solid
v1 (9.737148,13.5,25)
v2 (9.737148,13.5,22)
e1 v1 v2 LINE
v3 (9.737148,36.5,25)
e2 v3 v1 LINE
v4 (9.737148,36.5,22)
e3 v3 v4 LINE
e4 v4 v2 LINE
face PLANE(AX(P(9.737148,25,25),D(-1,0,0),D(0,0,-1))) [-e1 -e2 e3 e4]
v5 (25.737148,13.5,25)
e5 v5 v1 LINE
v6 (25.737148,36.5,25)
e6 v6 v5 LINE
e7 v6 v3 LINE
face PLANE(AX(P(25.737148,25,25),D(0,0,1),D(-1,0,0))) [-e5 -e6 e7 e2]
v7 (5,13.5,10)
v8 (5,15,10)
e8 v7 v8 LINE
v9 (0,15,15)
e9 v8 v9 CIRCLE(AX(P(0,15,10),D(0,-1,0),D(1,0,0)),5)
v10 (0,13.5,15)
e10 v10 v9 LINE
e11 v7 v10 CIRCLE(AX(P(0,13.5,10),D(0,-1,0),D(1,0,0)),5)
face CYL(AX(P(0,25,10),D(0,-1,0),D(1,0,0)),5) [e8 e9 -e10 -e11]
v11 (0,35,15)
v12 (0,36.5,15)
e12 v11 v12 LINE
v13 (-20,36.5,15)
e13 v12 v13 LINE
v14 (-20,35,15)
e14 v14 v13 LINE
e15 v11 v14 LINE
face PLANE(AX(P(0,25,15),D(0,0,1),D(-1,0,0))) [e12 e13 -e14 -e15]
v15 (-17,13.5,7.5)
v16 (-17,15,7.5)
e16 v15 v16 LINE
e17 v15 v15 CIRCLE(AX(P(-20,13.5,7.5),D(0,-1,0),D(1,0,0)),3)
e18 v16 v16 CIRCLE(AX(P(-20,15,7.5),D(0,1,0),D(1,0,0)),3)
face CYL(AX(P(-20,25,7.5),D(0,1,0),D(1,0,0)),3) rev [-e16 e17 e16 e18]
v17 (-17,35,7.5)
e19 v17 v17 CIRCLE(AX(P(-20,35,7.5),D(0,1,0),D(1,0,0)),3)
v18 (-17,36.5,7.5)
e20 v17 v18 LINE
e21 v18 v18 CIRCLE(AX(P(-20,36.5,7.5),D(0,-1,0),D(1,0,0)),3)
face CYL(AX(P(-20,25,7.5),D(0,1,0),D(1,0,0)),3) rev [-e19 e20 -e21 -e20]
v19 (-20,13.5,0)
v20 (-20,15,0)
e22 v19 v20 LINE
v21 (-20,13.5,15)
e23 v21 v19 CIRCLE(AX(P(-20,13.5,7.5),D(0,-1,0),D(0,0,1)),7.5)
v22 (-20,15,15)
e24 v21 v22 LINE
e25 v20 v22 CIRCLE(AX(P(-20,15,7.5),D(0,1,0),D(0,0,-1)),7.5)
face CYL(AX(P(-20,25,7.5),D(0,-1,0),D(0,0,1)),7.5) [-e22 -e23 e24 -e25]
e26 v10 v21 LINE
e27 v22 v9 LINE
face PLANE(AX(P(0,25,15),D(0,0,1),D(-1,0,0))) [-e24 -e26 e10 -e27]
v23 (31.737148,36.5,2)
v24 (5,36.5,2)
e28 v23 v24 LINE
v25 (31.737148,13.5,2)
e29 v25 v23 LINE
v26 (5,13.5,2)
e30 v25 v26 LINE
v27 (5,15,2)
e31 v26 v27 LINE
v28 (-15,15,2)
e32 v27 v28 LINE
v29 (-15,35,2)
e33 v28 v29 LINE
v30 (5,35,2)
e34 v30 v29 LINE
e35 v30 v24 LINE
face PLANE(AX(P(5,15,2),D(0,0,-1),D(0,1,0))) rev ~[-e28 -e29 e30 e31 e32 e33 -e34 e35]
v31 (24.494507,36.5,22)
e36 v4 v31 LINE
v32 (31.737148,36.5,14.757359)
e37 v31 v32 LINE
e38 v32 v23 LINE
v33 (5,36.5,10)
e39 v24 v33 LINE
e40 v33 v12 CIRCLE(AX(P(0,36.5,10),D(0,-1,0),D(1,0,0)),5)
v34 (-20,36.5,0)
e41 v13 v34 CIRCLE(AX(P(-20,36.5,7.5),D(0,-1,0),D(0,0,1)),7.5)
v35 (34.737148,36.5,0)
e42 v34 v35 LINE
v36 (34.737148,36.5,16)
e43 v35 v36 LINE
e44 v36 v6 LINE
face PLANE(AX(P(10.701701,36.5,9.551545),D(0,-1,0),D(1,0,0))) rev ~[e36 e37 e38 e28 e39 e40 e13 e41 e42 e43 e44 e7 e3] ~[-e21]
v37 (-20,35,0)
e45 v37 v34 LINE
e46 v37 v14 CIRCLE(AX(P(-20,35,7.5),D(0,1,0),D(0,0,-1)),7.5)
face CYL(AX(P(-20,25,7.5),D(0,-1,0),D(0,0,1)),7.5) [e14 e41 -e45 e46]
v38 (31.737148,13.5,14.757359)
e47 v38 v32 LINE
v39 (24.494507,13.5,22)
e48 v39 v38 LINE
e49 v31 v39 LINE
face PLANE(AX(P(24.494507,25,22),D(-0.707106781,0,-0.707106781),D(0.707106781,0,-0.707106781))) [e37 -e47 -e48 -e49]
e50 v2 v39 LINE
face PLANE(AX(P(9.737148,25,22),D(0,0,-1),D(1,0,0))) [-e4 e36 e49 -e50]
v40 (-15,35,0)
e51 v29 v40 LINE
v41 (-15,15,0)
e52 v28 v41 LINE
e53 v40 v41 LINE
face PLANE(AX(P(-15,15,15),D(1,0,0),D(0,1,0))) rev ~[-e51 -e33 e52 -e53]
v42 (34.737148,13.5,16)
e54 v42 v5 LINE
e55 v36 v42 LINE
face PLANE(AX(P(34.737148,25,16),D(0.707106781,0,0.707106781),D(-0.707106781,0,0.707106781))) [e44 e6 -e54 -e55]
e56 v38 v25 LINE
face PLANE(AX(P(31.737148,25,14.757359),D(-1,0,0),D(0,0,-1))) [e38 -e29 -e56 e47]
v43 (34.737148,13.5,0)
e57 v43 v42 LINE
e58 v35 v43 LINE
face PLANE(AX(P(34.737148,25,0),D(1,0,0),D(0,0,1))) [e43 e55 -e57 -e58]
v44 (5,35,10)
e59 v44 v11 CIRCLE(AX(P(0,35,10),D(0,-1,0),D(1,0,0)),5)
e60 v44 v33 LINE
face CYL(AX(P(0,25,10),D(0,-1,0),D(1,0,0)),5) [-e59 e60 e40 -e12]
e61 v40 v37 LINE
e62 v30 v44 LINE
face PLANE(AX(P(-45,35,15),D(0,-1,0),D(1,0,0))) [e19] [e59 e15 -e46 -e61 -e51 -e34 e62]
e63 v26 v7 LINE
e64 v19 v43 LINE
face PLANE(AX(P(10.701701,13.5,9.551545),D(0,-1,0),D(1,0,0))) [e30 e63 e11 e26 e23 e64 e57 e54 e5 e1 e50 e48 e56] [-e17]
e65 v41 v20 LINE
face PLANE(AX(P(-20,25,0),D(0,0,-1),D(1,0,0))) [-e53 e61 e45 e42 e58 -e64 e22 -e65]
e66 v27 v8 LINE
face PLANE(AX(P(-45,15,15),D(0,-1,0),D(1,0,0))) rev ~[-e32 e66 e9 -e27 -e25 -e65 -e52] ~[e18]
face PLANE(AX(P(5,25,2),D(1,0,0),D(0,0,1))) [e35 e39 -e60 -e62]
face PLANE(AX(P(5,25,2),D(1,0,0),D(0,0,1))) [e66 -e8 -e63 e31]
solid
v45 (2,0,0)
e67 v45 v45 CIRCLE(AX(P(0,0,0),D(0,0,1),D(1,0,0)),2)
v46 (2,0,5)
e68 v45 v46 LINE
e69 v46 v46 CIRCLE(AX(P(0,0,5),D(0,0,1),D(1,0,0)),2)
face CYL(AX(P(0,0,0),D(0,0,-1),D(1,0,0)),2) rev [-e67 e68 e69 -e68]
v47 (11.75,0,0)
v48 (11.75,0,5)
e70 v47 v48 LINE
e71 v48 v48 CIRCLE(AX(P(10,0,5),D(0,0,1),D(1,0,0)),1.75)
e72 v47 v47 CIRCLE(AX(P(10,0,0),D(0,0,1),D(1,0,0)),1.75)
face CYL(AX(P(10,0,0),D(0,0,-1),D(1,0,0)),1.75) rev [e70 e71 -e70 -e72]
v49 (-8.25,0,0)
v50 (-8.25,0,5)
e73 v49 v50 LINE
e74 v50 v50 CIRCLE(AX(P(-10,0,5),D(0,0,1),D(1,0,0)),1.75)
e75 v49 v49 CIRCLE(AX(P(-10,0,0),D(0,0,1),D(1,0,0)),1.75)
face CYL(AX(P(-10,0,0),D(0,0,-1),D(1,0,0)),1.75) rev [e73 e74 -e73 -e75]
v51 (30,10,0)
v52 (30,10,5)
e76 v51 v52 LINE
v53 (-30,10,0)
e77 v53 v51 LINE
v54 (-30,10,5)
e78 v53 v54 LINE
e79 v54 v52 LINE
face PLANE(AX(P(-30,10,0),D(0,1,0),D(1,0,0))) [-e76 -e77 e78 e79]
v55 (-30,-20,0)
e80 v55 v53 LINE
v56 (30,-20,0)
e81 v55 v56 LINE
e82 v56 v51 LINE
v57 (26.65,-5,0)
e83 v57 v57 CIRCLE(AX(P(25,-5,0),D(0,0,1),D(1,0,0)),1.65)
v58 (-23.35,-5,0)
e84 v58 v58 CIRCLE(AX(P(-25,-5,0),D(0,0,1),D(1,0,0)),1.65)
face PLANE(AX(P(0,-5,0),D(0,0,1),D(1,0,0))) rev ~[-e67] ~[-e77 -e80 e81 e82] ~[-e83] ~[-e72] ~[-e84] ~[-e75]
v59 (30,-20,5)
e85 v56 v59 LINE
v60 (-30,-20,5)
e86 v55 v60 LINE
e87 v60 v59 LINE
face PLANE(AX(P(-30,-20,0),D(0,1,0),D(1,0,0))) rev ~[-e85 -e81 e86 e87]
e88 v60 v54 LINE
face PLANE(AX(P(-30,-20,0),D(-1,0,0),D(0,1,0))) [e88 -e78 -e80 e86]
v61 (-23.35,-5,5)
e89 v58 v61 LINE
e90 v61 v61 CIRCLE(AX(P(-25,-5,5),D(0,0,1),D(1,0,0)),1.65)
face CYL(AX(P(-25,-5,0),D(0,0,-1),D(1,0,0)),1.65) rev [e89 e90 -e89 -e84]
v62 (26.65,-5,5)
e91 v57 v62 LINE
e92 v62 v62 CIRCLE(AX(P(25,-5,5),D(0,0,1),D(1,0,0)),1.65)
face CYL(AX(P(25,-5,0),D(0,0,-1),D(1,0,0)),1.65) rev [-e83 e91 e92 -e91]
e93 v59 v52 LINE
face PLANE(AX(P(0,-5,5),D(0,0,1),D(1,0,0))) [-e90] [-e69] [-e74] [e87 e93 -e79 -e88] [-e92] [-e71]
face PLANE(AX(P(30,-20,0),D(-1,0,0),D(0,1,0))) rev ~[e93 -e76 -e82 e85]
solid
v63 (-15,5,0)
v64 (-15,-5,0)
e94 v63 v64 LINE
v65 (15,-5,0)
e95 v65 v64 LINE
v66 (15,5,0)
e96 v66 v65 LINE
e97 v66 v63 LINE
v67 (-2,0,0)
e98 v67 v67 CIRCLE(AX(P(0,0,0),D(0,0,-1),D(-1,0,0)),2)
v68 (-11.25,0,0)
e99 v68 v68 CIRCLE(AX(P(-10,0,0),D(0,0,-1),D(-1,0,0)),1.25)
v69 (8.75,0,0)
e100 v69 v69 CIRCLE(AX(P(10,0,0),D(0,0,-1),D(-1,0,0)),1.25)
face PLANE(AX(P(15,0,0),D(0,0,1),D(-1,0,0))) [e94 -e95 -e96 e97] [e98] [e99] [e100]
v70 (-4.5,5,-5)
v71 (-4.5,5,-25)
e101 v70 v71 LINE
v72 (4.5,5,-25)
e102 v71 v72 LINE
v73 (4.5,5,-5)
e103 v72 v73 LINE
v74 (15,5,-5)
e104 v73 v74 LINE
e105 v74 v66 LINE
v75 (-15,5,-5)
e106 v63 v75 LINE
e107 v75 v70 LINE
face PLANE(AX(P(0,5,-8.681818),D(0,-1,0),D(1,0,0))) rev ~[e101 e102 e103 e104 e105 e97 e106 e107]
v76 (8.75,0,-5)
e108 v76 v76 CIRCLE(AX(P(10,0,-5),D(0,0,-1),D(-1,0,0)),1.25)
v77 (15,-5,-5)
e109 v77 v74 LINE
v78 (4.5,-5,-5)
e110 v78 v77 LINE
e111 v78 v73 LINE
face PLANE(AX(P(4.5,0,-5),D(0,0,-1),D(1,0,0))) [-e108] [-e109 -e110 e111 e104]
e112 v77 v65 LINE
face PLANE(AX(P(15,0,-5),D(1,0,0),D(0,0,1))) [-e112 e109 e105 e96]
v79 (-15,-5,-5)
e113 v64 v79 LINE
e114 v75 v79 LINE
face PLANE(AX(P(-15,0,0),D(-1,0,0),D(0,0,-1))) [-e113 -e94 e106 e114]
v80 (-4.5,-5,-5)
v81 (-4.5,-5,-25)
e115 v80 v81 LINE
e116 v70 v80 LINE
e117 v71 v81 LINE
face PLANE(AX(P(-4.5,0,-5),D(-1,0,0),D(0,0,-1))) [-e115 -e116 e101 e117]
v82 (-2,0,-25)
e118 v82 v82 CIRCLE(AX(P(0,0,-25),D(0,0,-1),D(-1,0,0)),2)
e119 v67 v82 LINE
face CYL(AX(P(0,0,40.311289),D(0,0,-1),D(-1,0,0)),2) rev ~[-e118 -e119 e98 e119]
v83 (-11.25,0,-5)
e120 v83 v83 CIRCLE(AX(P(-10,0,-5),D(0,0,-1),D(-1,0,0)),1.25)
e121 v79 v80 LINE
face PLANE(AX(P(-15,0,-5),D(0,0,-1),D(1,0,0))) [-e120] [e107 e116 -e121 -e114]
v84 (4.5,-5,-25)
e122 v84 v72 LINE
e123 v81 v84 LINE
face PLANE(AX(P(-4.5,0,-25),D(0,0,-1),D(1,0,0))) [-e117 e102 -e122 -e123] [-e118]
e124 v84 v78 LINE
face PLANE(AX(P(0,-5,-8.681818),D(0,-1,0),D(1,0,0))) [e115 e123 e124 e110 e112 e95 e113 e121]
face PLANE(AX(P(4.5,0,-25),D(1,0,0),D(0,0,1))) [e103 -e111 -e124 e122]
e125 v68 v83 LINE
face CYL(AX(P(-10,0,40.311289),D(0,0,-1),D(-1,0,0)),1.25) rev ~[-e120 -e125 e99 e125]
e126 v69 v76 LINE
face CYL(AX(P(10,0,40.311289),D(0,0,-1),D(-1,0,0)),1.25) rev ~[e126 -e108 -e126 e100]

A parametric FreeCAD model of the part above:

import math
import FreeCAD as App
import Part
import Sketcher

V = App.Vector
Q = App.Units.Quantity

doc = App.newDocument("Part")
params = doc.addObject("Spreadsheet::Sheet", "Params")
for row, (alias, value) in enumerate([
    ("sketch1_diameter", "6 mm"),
    ("sketch1_radius", "5 mm"),
    ("sketch1_radius2", "7.5 mm"),
    ("sketch1_width", "16 mm"),
    ("sketch1_width2", "20 mm"),
    ("pad1_length", "23 mm"),
    ("sketch2_width", "30 mm"),
    ("sketch2_height", "20 mm"),
    ("sketch3_width", "20 mm"),
    ("sketch4_diameter", "4 mm"),
    ("sketch4_diameter2", "3.3 mm"),
    ("sketch4_diameter3", "3.5 mm"),
    ("sketch4_width", "60 mm"),
    ("sketch4_height", "30 mm"),
    ("pad2_length", "5 mm"),
    ("sketch5_width", "30 mm"),
    ("sketch5_width2", "9 mm"),
    ("sketch5_height", "5 mm"),
    ("sketch5_height2", "20 mm"),
    ("pad3_length", "10 mm"),
    ("sketch6_diameter", "4 mm"),
    ("hole_diameter", "4 mm"),
    ("sketch7_diameter", "2.5 mm"),
    ("hole2_diameter", "2.5 mm"),
], start=1):
    params.set(f"A{row}", alias)
    params.set(f"B{row}", "=" + value)
    params.setAlias(f"B{row}", alias)

body = doc.addObject("PartDesign::Body", "Body")

sketch1 = body.newObject("Sketcher::SketchObject", "Sketch")
sketch1.AttachmentSupport = (doc.getObject("XZ_Plane"), [""])
sketch1.MapMode = "FlatFace"
sketch1.AttachmentOffset = App.Placement(V(0, 0, -25), App.Rotation())
sketch1.addGeometry([
    Part.LineSegment(V(-20, 0, 0), V(34.7, 0, 0)),
    Part.LineSegment(V(34.7, 0, 0), V(34.7, 16, 0)),
    Part.LineSegment(V(34.7, 16, 0), V(25.7, 25, 0)),
    Part.LineSegment(V(25.7, 25, 0), V(9.7, 25, 0)),
    Part.LineSegment(V(9.7, 25, 0), V(9.7, 22, 0)),
    Part.LineSegment(V(9.7, 22, 0), V(24.5, 22, 0)),
    Part.LineSegment(V(24.5, 22, 0), V(31.7, 14.8, 0)),
    Part.LineSegment(V(31.7, 14.8, 0), V(31.7, 2, 0)),
    Part.LineSegment(V(31.7, 2, 0), V(5, 2, 0)),
    Part.LineSegment(V(5, 2, 0), V(5, 10, 0)),
    Part.ArcOfCircle(Part.Circle(V(0, 10, 0), V(0, 0, 1), 5), math.radians(0), math.radians(90)),
    Part.LineSegment(V(0, 15, 0), V(-20, 15, 0)),
    Part.ArcOfCircle(Part.Circle(V(-20, 7.5, 0), V(0, 0, 1), 7.5), math.radians(90), math.radians(270)),
    Part.Circle(V(-20, 7.5, 0), V(0, 0, 1), 3),
], False)
sketch1.addConstraint([
    Sketcher.Constraint("Coincident", 0, 2, 1, 1),
    Sketcher.Constraint("Coincident", 1, 2, 2, 1),
    Sketcher.Constraint("Coincident", 2, 2, 3, 1),
    Sketcher.Constraint("Coincident", 3, 2, 4, 1),
    Sketcher.Constraint("Coincident", 4, 2, 5, 1),
    Sketcher.Constraint("Coincident", 5, 2, 6, 1),
    Sketcher.Constraint("Coincident", 6, 2, 7, 1),
    Sketcher.Constraint("Coincident", 7, 2, 8, 1),
    Sketcher.Constraint("Coincident", 8, 2, 9, 1),
    Sketcher.Constraint("Tangent", 9, 2, 10, 1),
    Sketcher.Constraint("Tangent", 10, 2, 11, 1),
    Sketcher.Constraint("Tangent", 11, 2, 12, 1),
    Sketcher.Constraint("Tangent", 12, 2, 0, 1),
    Sketcher.Constraint("Horizontal", 0),
    Sketcher.Constraint("Vertical", 1),
    Sketcher.Constraint("Horizontal", 3),
    Sketcher.Constraint("Vertical", 4),
    Sketcher.Constraint("Horizontal", 5),
    Sketcher.Constraint("Vertical", 7),
    Sketcher.Constraint("Horizontal", 8),
    Sketcher.Constraint("Vertical", 9),
    Sketcher.Constraint("Horizontal", 11),
    Sketcher.Constraint("Coincident", 13, 3, 12, 3),
    Sketcher.Constraint("PointOnObject", 10, 3, -2),
    Sketcher.Constraint("PointOnObject", 0, 2, -1),
    Sketcher.Constraint("Parallel", 2, 6),
    Sketcher.Constraint("Equal", 3, 1),
    Sketcher.Constraint("Diameter", 13, Q("6 mm")),
    Sketcher.Constraint("Radius", 10, Q("5 mm")),
    Sketcher.Constraint("Radius", 12, Q("7.5 mm")),
    Sketcher.Constraint("DistanceX", 3, 2, 3, 1, Q("16 mm")),
    Sketcher.Constraint("DistanceX", 11, 2, 11, 1, Q("20 mm")),
    Sketcher.Constraint("DistanceY", 4, 2, 4, 1, Q("3 mm")),
    Sketcher.Constraint("DistanceY", 9, 1, 9, 2, Q("8 mm")),
    Sketcher.Constraint("Angle", 2, Q("135 deg")),
    Sketcher.Constraint("DistanceY", -1, 1, 2, 2, Q("25 mm")),
    Sketcher.Constraint("DistanceX", 6, 2, 1, 2, Q("3 mm")),
    Sketcher.Constraint("DistanceX", 0, 1, 0, 2, Q("54.737148 mm")),
    Sketcher.Constraint("DistanceX", 5, 1, 5, 2, Q("14.757359 mm")),
])
sketch1.setExpression("Constraints[27]", "Params.sketch1_diameter")
sketch1.setExpression("Constraints[28]", "Params.sketch1_radius")
sketch1.setExpression("Constraints[29]", "Params.sketch1_radius2")
sketch1.setExpression("Constraints[30]", "Params.sketch1_width")
sketch1.setExpression("Constraints[31]", "Params.sketch1_width2")
pad1 = body.newObject("PartDesign::Pad", "Pad")
pad1.Profile = sketch1
pad1.setExpression("Length", "Params.pad1_length")
pad1.Midplane = True

sketch2 = body.newObject("Sketcher::SketchObject", "Sketch001")
sketch2.AttachmentSupport = (doc.getObject("XY_Plane"), [""])
sketch2.MapMode = "FlatFace"
sketch2.AttachmentOffset = App.Placement(V(0, 0, 15), App.Rotation())
sketch2.addGeometry([
    Part.LineSegment(V(-45, 35, 0), V(-45, 15, 0)),
    Part.LineSegment(V(-45, 15, 0), V(-15, 15, 0)),
    Part.LineSegment(V(-15, 15, 0), V(-15, 35, 0)),
    Part.LineSegment(V(-15, 35, 0), V(-45, 35, 0)),
], False)
sketch2.addConstraint([
    Sketcher.Constraint("Coincident", 0, 2, 1, 1),
    Sketcher.Constraint("Coincident", 1, 2, 2, 1),
    Sketcher.Constraint("Coincident", 2, 2, 3, 1),
    Sketcher.Constraint("Coincident", 3, 2, 0, 1),
    Sketcher.Constraint("Vertical", 0),
    Sketcher.Constraint("Horizontal", 1),
    Sketcher.Constraint("Vertical", 2),
    Sketcher.Constraint("Horizontal", 3),
    Sketcher.Constraint("DistanceX", 1, 1, 1, 2, Q("30 mm")),
    Sketcher.Constraint("DistanceY", 0, 2, 0, 1, Q("20 mm")),
    Sketcher.Constraint("DistanceX", 0, 2, -1, 1, Q("45 mm")),
    Sketcher.Constraint("DistanceY", -1, 1, 0, 2, Q("15 mm")),
])
sketch2.setExpression("Constraints[8]", "Params.sketch2_width")
sketch2.setExpression("Constraints[9]", "Params.sketch2_height")
pocket1 = body.newObject("PartDesign::Pocket", "Pocket")
pocket1.Profile = sketch2
pocket1.Type = "ThroughAll"

sketch3 = body.newObject("Sketcher::SketchObject", "Sketch002")
sketch3.AttachmentSupport = (doc.getObject("YZ_Plane"), [""])
sketch3.MapMode = "FlatFace"
sketch3.AttachmentOffset = App.Placement(V(0, 0, 5), App.Rotation())
sketch3.addGeometry([
    Part.LineSegment(V(15, 22, 0), V(15, 2, 0)),
    Part.LineSegment(V(15, 2, 0), V(35, 2, 0)),
    Part.LineSegment(V(35, 2, 0), V(35, 22, 0)),
    Part.LineSegment(V(35, 22, 0), V(15, 22, 0)),
], False)
sketch3.addConstraint([
    Sketcher.Constraint("Coincident", 0, 2, 1, 1),
    Sketcher.Constraint("Coincident", 1, 2, 2, 1),
    Sketcher.Constraint("Coincident", 2, 2, 3, 1),
    Sketcher.Constraint("Coincident", 3, 2, 0, 1),
    Sketcher.Constraint("Vertical", 0),
    Sketcher.Constraint("Horizontal", 1),
    Sketcher.Constraint("Vertical", 2),
    Sketcher.Constraint("Horizontal", 3),
    Sketcher.Constraint("Equal", 3, 0),
    Sketcher.Constraint("DistanceX", 1, 1, 1, 2, Q("20 mm")),
    Sketcher.Constraint("DistanceX", -1, 1, 0, 2, Q("15 mm")),
    Sketcher.Constraint("DistanceY", -1, 1, 0, 2, Q("2 mm")),
])
sketch3.setExpression("Constraints[9]", "Params.sketch3_width")
pocket2 = body.newObject("PartDesign::Pocket", "Pocket001")
pocket2.Profile = sketch3
pocket2.Type = "ThroughAll"
body2 = doc.addObject("PartDesign::Body", "Body001")

sketch4 = body2.newObject("Sketcher::SketchObject", "Sketch003")
sketch4.AttachmentSupport = (doc.getObject("XY_Plane001"), [""])
sketch4.MapMode = "FlatFace"
sketch4.addGeometry([
    Part.LineSegment(V(-30, 10, 0), V(-30, -20, 0)),
    Part.LineSegment(V(-30, -20, 0), V(30, -20, 0)),
    Part.LineSegment(V(30, -20, 0), V(30, 10, 0)),
    Part.LineSegment(V(30, 10, 0), V(-30, 10, 0)),
    Part.Circle(V(-25, -5, 0), V(0, 0, 1), 1.6),
    Part.Circle(V(25, -5, 0), V(0, 0, 1), 1.6),
    Part.Circle(V(-10, 0, 0), V(0, 0, 1), 1.8),
    Part.Circle(V(0, 0, 0), V(0, 0, 1), 2),
    Part.Circle(V(10, 0, 0), V(0, 0, 1), 1.8),
], False)
sketch4.addConstraint([
    Sketcher.Constraint("Coincident", 0, 2, 1, 1),
    Sketcher.Constraint("Coincident", 1, 2, 2, 1),
    Sketcher.Constraint("Coincident", 2, 2, 3, 1),
    Sketcher.Constraint("Coincident", 3, 2, 0, 1),
    Sketcher.Constraint("Vertical", 0),
    Sketcher.Constraint("Horizontal", 1),
    Sketcher.Constraint("Vertical", 2),
    Sketcher.Constraint("Horizontal", 3),
    Sketcher.Constraint("Coincident", 7, 3, -1, 1),
    Sketcher.Constraint("Equal", 4, 5),
    Sketcher.Constraint("Equal", 6, 8),
    Sketcher.Constraint("Symmetric", 6, 3, 8, 3, -1, 1),
    Sketcher.Constraint("Symmetric", 4, 3, 5, 3, -2),
    Sketcher.Constraint("PointOnObject", 6, 3, -1),
    Sketcher.Constraint("Diameter", 7, Q("4 mm")),
    Sketcher.Constraint("Diameter", 4, Q("3.3 mm")),
    Sketcher.Constraint("Diameter", 6, Q("3.5 mm")),
    Sketcher.Constraint("DistanceX", 1, 1, 1, 2, Q("60 mm")),
    Sketcher.Constraint("DistanceY", 0, 2, 0, 1, Q("30 mm")),
    Sketcher.Constraint("DistanceX", 4, 3, -1, 1, Q("25 mm")),
    Sketcher.Constraint("DistanceY", 4, 3, -1, 1, Q("5 mm")),
    Sketcher.Constraint("DistanceX", 6, 3, -1, 1, Q("10 mm")),
    Sketcher.Constraint("DistanceX", 0, 2, -1, 1, Q("30 mm")),
    Sketcher.Constraint("DistanceY", 0, 2, -1, 1, Q("20 mm")),
])
sketch4.setExpression("Constraints[14]", "Params.sketch4_diameter")
sketch4.setExpression("Constraints[15]", "Params.sketch4_diameter2")
sketch4.setExpression("Constraints[16]", "Params.sketch4_diameter3")
sketch4.setExpression("Constraints[17]", "Params.sketch4_width")
sketch4.setExpression("Constraints[18]", "Params.sketch4_height")
pad2 = body2.newObject("PartDesign::Pad", "Pad001")
pad2.Profile = sketch4
pad2.setExpression("Length", "Params.pad2_length")
body3 = doc.addObject("PartDesign::Body", "Body002")

sketch5 = body3.newObject("Sketcher::SketchObject", "Sketch004")
sketch5.AttachmentSupport = (doc.getObject("XZ_Plane002"), [""])
sketch5.MapMode = "FlatFace"
sketch5.addGeometry([
    Part.LineSegment(V(15, -5, 0), V(15, 0, 0)),
    Part.LineSegment(V(15, 0, 0), V(-15, 0, 0)),
    Part.LineSegment(V(-15, 0, 0), V(-15, -5, 0)),
    Part.LineSegment(V(-15, -5, 0), V(-4, -5, 0)),
    Part.LineSegment(V(-4, -5, 0), V(-4, -25, 0)),
    Part.LineSegment(V(-4, -25, 0), V(4, -25, 0)),
    Part.LineSegment(V(4, -25, 0), V(4, -5, 0)),
    Part.LineSegment(V(4, -5, 0), V(15, -5, 0)),
], False)
sketch5.addConstraint([
    Sketcher.Constraint("Coincident", 0, 2, 1, 1),
    Sketcher.Constraint("Coincident", 1, 2, 2, 1),
    Sketcher.Constraint("Coincident", 2, 2, 3, 1),
    Sketcher.Constraint("Coincident", 3, 2, 4, 1),
    Sketcher.Constraint("Coincident", 4, 2, 5, 1),
    Sketcher.Constraint("Coincident", 5, 2, 6, 1),
    Sketcher.Constraint("Coincident", 6, 2, 7, 1),
    Sketcher.Constraint("Coincident", 7, 2, 0, 1),
    Sketcher.Constraint("Vertical", 0),
    Sketcher.Constraint("Horizontal", 1),
    Sketcher.Constraint("Vertical", 2),
    Sketcher.Constraint("Horizontal", 3),
    Sketcher.Constraint("Vertical", 4),
    Sketcher.Constraint("Horizontal", 5),
    Sketcher.Constraint("Vertical", 6),
    Sketcher.Constraint("Horizontal", 7),
    Sketcher.Constraint("Symmetric", 0, 2, 1, 2, -1, 1),
    Sketcher.Constraint("Symmetric", 3, 2, 6, 2, -2),
    Sketcher.Constraint("DistanceX", 1, 2, 1, 1, Q("30 mm")),
    Sketcher.Constraint("DistanceX", 5, 1, 5, 2, Q("9 mm")),
    Sketcher.Constraint("DistanceY", 0, 1, 0, 2, Q("5 mm")),
    Sketcher.Constraint("DistanceY", 4, 2, 4, 1, Q("20 mm")),
])
sketch5.setExpression("Constraints[18]", "Params.sketch5_width")
sketch5.setExpression("Constraints[19]", "Params.sketch5_width2")
sketch5.setExpression("Constraints[20]", "Params.sketch5_height")
sketch5.setExpression("Constraints[21]", "Params.sketch5_height2")
pad3 = body3.newObject("PartDesign::Pad", "Pad002")
pad3.Profile = sketch5
pad3.setExpression("Length", "Params.pad3_length")
pad3.Midplane = True

sketch6 = body3.newObject("Sketcher::SketchObject", "Sketch005")
sketch6.AttachmentSupport = (doc.getObject("XY_Plane002"), [""])
sketch6.MapMode = "FlatFace"
sketch6.addGeometry(Part.Circle(V(0, 0, 0), V(0, 0, 1), 2), False)
sketch6.addConstraint([
    Sketcher.Constraint("Coincident", 0, 3, -1, 1),
    Sketcher.Constraint("Diameter", 0, Q("4 mm")),
])
sketch6.setExpression("Constraints[1]", "Params.sketch6_diameter")
doc.recompute()
hole = body3.newObject("PartDesign::Hole", "Hole")
hole.Profile = sketch6
hole.ThreadType = "None"
hole.setExpression("Diameter", "Params.hole_diameter")
hole.DepthType = "ThroughAll"

sketch7 = body3.newObject("Sketcher::SketchObject", "Sketch006")
sketch7.AttachmentSupport = (doc.getObject("XY_Plane002"), [""])
sketch7.MapMode = "FlatFace"
sketch7.addGeometry([
    Part.Circle(V(-10, 0, 0), V(0, 0, 1), 1.2),
    Part.Circle(V(10, 0, 0), V(0, 0, 1), 1.2),
], False)
sketch7.addConstraint([
    Sketcher.Constraint("Equal", 0, 1),
    Sketcher.Constraint("Symmetric", 0, 3, 1, 3, -1, 1),
    Sketcher.Constraint("PointOnObject", 0, 3, -1),
    Sketcher.Constraint("Diameter", 0, Q("2.5 mm")),
    Sketcher.Constraint("DistanceX", 0, 3, -1, 1, Q("10 mm")),
])
sketch7.setExpression("Constraints[3]", "Params.sketch7_diameter")
doc.recompute()
hole2 = body3.newObject("PartDesign::Hole", "Hole001")
hole2.Profile = sketch7
hole2.ThreadType = "None"
hole2.setExpression("Diameter", "Params.hole2_diameter")
hole2.DepthType = "ThroughAll"

doc.recompute()
